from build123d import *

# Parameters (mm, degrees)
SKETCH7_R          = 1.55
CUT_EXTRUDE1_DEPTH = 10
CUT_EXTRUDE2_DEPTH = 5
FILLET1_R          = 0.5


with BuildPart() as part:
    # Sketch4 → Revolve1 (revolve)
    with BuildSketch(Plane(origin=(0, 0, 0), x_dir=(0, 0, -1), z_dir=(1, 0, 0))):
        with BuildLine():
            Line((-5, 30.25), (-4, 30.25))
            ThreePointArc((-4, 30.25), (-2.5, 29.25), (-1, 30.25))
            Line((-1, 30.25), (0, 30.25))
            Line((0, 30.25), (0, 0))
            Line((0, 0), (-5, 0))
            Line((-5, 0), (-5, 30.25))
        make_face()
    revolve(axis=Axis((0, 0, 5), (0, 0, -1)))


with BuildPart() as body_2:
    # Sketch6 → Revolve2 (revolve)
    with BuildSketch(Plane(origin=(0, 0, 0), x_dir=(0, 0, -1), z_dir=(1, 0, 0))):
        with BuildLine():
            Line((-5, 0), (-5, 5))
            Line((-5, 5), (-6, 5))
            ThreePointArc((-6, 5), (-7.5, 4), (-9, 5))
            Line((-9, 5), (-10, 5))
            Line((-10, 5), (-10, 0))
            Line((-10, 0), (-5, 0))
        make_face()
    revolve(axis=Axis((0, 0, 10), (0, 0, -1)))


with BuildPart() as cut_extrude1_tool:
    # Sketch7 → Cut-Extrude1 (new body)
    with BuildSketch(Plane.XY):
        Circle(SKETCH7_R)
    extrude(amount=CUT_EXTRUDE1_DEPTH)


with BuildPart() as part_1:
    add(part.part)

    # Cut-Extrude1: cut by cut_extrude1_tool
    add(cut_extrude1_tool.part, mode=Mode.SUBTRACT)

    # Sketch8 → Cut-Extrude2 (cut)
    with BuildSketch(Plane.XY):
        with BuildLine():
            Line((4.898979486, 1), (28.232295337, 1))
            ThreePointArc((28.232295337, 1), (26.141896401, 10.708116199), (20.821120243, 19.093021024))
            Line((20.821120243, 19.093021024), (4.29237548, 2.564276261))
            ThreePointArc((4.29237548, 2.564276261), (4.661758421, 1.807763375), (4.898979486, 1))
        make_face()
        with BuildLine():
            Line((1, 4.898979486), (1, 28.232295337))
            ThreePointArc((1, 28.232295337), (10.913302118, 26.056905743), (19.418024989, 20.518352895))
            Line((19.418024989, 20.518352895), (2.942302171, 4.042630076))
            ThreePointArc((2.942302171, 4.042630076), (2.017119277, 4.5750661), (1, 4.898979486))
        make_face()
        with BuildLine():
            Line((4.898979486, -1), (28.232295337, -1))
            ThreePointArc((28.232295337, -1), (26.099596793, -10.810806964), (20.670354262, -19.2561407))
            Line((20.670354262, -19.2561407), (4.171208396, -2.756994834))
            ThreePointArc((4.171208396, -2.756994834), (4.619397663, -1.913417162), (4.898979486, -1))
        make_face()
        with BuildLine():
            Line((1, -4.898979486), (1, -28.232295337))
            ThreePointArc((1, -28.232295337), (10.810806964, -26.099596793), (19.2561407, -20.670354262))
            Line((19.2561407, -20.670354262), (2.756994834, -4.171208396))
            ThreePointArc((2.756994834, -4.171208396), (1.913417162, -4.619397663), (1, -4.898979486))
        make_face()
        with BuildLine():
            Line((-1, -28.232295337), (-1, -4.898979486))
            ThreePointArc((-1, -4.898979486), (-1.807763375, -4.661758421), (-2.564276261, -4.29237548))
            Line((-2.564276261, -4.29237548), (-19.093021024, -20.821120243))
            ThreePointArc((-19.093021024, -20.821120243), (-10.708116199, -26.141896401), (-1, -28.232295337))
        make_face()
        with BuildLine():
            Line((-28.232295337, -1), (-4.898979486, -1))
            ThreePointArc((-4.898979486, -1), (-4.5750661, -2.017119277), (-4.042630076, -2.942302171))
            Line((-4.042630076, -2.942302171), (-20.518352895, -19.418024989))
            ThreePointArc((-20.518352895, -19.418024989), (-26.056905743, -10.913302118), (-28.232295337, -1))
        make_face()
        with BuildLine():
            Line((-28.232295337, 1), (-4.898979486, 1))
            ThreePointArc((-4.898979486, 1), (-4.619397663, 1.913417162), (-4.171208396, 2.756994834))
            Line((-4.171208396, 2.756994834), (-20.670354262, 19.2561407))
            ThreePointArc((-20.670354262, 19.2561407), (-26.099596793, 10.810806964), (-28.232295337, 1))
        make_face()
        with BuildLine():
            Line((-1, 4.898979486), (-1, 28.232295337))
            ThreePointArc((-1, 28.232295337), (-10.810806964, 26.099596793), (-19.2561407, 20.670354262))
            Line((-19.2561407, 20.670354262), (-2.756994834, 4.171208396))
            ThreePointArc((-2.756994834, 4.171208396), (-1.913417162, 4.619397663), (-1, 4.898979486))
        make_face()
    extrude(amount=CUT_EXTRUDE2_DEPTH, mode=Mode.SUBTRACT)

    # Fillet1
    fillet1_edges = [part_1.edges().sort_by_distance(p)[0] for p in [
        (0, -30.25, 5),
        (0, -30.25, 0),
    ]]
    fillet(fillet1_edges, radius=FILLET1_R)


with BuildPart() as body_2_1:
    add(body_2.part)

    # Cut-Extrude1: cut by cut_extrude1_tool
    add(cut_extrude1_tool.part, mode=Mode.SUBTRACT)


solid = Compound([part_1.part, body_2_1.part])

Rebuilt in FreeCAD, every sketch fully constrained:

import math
import FreeCAD as App
import Part
import Sketcher
Q = App.Units.Quantity


def edges_at(feature, points):
    """Names of the edges that pass closest to the given points."""
    edges = feature.Shape.Edges
    near = lambda p: min(range(len(edges)), key=lambda i: edges[i].distToShape(Part.Vertex(*p))[0])
    return sorted({f"Edge{near(p) + 1}" for p in points})

doc = App.newDocument("Part")
body = doc.addObject("PartDesign::Body", "Body")

# Sketch on YZ plane
sketch1 = body.newObject("Sketcher::SketchObject", "Sketch")
sketch1.AttachmentSupport = (doc.getObject("YZ_Plane"), [""])
sketch1.MapMode = "FlatFace"
sketch1.addGeometry(Part.LineSegment(App.Vector(30.25, 4, 0), App.Vector(30.25, 5, 0)), False)
sketch1.addGeometry(Part.LineSegment(App.Vector(30.25, 5, 0), App.Vector(0, 5, 0)), False)
sketch1.addGeometry(Part.LineSegment(App.Vector(0, 5, 0), App.Vector(0, 0, 0)), False)
sketch1.addGeometry(Part.LineSegment(App.Vector(0, 0, 0), App.Vector(30.25, 0, 0)), False)
sketch1.addGeometry(Part.LineSegment(App.Vector(30.25, 0, 0), App.Vector(30.25, 1, 0)), False)
sketch1.addGeometry(Part.ArcOfCircle(Part.Circle(App.Vector(30.875, 2.5, 0), App.Vector(0, 0, 1), 1.625), math.radians(112.619865), math.radians(247.380135)), False)
sketch1.addConstraint(Sketcher.Constraint("Coincident", 0, 2, 1, 1))
sketch1.addConstraint(Sketcher.Constraint("Coincident", 1, 2, 2, 1))
sketch1.addConstraint(Sketcher.Constraint("Coincident", 2, 2, 3, 1))
sketch1.addConstraint(Sketcher.Constraint("Coincident", 3, 2, 4, 1))
sketch1.addConstraint(Sketcher.Constraint("Coincident", 4, 2, 5, 2))
sketch1.addConstraint(Sketcher.Constraint("Coincident", 5, 1, 0, 1))
sketch1.addConstraint(Sketcher.Constraint("Vertical", 0))
sketch1.addConstraint(Sketcher.Constraint("Horizontal", 1))
sketch1.addConstraint(Sketcher.Constraint("Vertical", 2))
sketch1.addConstraint(Sketcher.Constraint("Horizontal", 3))
sketch1.addConstraint(Sketcher.Constraint("Vertical", 4))
sketch1.addConstraint(Sketcher.Constraint("Coincident", 2, 2, -1, 1))
sketch1.addConstraint(Sketcher.Constraint("Vertical", 0, 2, 3, 2))
sketch1.addConstraint(Sketcher.Constraint("Equal", 0, 4))
sketch1.addConstraint(Sketcher.Constraint("DistanceY", 0, 1, 0, 2, 1.0))
sketch1.addConstraint(Sketcher.Constraint("DistanceY", 2, 2, 2, 1, 5.0))
sketch1.addConstraint(Sketcher.Constraint("Radius", 5, 1.625))
sketch1.addConstraint(Sketcher.Constraint("DistanceX", 1, 2, 1, 1, 30.25))
revolution = body.newObject("PartDesign::Revolution", "Revolution")
revolution.Profile = sketch1
revolution.ReferenceAxis = (sketch1, ["V_Axis"])
revolution.Angle = 360
body2 = doc.addObject("PartDesign::Body", "Body001")

# Sketch on YZ plane
sketch2 = body2.newObject("Sketcher::SketchObject", "Sketch001")
sketch2.AttachmentSupport = (doc.getObject("YZ_Plane001"), [""])
sketch2.MapMode = "FlatFace"
sketch2.addGeometry(Part.LineSegment(App.Vector(0, 5, 0), App.Vector(5, 5, 0)), False)
sketch2.addGeometry(Part.LineSegment(App.Vector(5, 5, 0), App.Vector(5, 6, 0)), False)
sketch2.addGeometry(Part.ArcOfCircle(Part.Circle(App.Vector(5.625, 7.5, 0), App.Vector(0, 0, 1), 1.625), math.radians(112.619865), math.radians(247.380135)), False)
sketch2.addGeometry(Part.LineSegment(App.Vector(5, 9, 0), App.Vector(5, 10, 0)), False)
sketch2.addGeometry(Part.LineSegment(App.Vector(5, 10, 0), App.Vector(0, 10, 0)), False)
sketch2.addGeometry(Part.LineSegment(App.Vector(0, 10, 0), App.Vector(0, 5, 0)), False)
sketch2.addConstraint(Sketcher.Constraint("Coincident", 0, 2, 1, 1))
sketch2.addConstraint(Sketcher.Constraint("Coincident", 1, 2, 2, 2))
sketch2.addConstraint(Sketcher.Constraint("Coincident", 2, 1, 3, 1))
sketch2.addConstraint(Sketcher.Constraint("Coincident", 3, 2, 4, 1))
sketch2.addConstraint(Sketcher.Constraint("Coincident", 4, 2, 5, 1))
sketch2.addConstraint(Sketcher.Constraint("Coincident", 5, 2, 0, 1))
sketch2.addConstraint(Sketcher.Constraint("Horizontal", 0))
sketch2.addConstraint(Sketcher.Constraint("Vertical", 1))
sketch2.addConstraint(Sketcher.Constraint("Vertical", 3))
sketch2.addConstraint(Sketcher.Constraint("Horizontal", 4))
sketch2.addConstraint(Sketcher.Constraint("Vertical", 5))
sketch2.addConstraint(Sketcher.Constraint("PointOnObject", 4, 2, -2))
sketch2.addConstraint(Sketcher.Constraint("Vertical", 1, 2, 2, 1))
sketch2.addConstraint(Sketcher.Constraint("Equal", 1, 3))
sketch2.addConstraint(Sketcher.Constraint("Equal", 4, 5))
sketch2.addConstraint(Sketcher.Constraint("DistanceX", 0, 1, 0, 2, 5.0))
sketch2.addConstraint(Sketcher.Constraint("DistanceY", 1, 1, 1, 2, 1.0))
sketch2.addConstraint(Sketcher.Constraint("DistanceY", -1, 1, 0, 2, 5.0))
sketch2.addConstraint(Sketcher.Constraint("Radius", 2, 1.625))
revolution2 = body2.newObject("PartDesign::Revolution", "Revolution001")
revolution2.Profile = sketch2
revolution2.ReferenceAxis = (sketch2, ["V_Axis"])
revolution2.Angle = 360
body3 = doc.addObject("PartDesign::Body", "Body002")

# Sketch on XY plane
sketch3 = body3.newObject("Sketcher::SketchObject", "Sketch002")
sketch3.AttachmentSupport = (doc.getObject("XY_Plane002"), [""])
sketch3.MapMode = "FlatFace"
sketch3.addGeometry(Part.Circle(App.Vector(0, 0, 0), App.Vector(0, 0, 1), 1.55), False)
sketch3.addConstraint(Sketcher.Constraint("Coincident", 0, 3, -1, 1))
sketch3.addConstraint(Sketcher.Constraint("Diameter", 0, 3.1))
pad1 = body3.newObject("PartDesign::Pad", "Pad")
pad1.Profile = sketch3
pad1.Length = 10
doc.recompute()

body4 = doc.addObject("PartDesign::Body", "Body003")
body4.BaseFeature = body3
boolean = body.newObject("PartDesign::Boolean", "Boolean")
boolean.Type = "Cut"
boolean.addObjects([body4])
doc.recompute()

# Sketch on XY plane
sketch4 = body.newObject("Sketcher::SketchObject", "Sketch003")
sketch4.AttachmentSupport = (doc.getObject("XY_Plane"), [""])
sketch4.MapMode = "FlatFace"
sketch4.addGeometry(Part.LineSegment(App.Vector(4.898979, 1, 0), App.Vector(28.232295, 1, 0)), False)
sketch4.addGeometry(Part.ArcOfCircle(Part.Circle(App.Vector(0, 0, 0), App.Vector(0, 0, 1), 28.25), math.radians(2.028593), math.radians(42.520904)), False)
sketch4.addGeometry(Part.LineSegment(App.Vector(20.82112, 19.093021, 0), App.Vector(4.292375, 2.564276, 0)), False)
sketch4.addGeometry(Part.ArcOfCircle(Part.Circle(App.Vector(0, 0, 0), App.Vector(0, 0, 1), 5), math.radians(11.536959), math.radians(30.854204)), False)
sketch4.addGeometry(Part.LineSegment(App.Vector(1, 28.232295, 0), App.Vector(1, 4.898979, 0)), False)
sketch4.addGeometry(Part.ArcOfCircle(Part.Circle(App.Vector(0, 0, 0), App.Vector(0, 0, 1), 5), math.radians(53.952168), math.radians(78.463041)), False)
sketch4.addGeometry(Part.LineSegment(App.Vector(2.942302, 4.04263, 0), App.Vector(19.418025, 20.518353, 0)), False)
sketch4.addGeometry(Part.ArcOfCircle(Part.Circle(App.Vector(0, 0, 0), App.Vector(0, 0, 1), 28.25), math.radians(46.578215), math.radians(87.971407)), False)
sketch4.addGeometry(Part.LineSegment(App.Vector(28.232295, -1, 0), App.Vector(4.898979, -1, 0)), False)
sketch4.addGeometry(Part.ArcOfCircle(Part.Circle(App.Vector(0, 0, 0), App.Vector(0, 0, 1), 5), math.radians(-33.463041), math.radians(-11.536959)), False)
sketch4.addGeometry(Part.LineSegment(App.Vector(4.171208, -2.756995, 0), App.Vector(20.670354, -19.256141, 0)), False)
sketch4.addGeometry(Part.ArcOfCircle(Part.Circle(App.Vector(0, 0, 0), App.Vector(0, 0, 1), 28.25), math.radians(-42.971407), math.radians(-2.028593)), False)
sketch4.addGeometry(Part.LineSegment(App.Vector(1, -4.898979, 0), App.Vector(1, -28.232295, 0)), False)
sketch4.addGeometry(Part.ArcOfCircle(Part.Circle(App.Vector(0, 0, 0), App.Vector(0, 0, 1), 28.25), math.radians(-87.971407), math.radians(-47.028593)), False)
sketch4.addGeometry(Part.LineSegment(App.Vector(19.256141, -20.670354, 0), App.Vector(2.756995, -4.171208, 0)), False)
sketch4.addGeometry(Part.ArcOfCircle(Part.Circle(App.Vector(0, 0, 0), App.Vector(0, 0, 1), 5), math.radians(-78.463041), math.radians(-56.536959)), False)
sketch4.addGeometry(Part.LineSegment(App.Vector(-1, -28.232295, 0), App.Vector(-1, -4.898979, 0)), False)
sketch4.addGeometry(Part.ArcOfCircle(Part.Circle(App.Vector(0, 0, 0), App.Vector(0, 0, 1), 5), math.radians(-120.854204), math.radians(-101.536959)), False)
sketch4.addGeometry(Part.LineSegment(App.Vector(-2.564276, -4.292375, 0), App.Vector(-19.093021, -20.82112, 0)), False)
sketch4.addGeometry(Part.ArcOfCircle(Part.Circle(App.Vector(0, 0, 0), App.Vector(0, 0, 1), 28.25), math.radians(-132.520904), math.radians(-92.028593)), False)
sketch4.addGeometry(Part.LineSegment(App.Vector(-4.898979, -1, 0), App.Vector(-28.232295, -1, 0)), False)
sketch4.addGeometry(Part.ArcOfCircle(Part.Circle(App.Vector(0, 0, 0), App.Vector(0, 0, 1), 28.25), math.radians(-177.971407), math.radians(-136.578215)), False)
sketch4.addGeometry(Part.LineSegment(App.Vector(-20.518353, -19.418025, 0), App.Vector(-4.04263, -2.942302, 0)), False)
sketch4.addGeometry(Part.ArcOfCircle(Part.Circle(App.Vector(0, 0, 0), App.Vector(0, 0, 1), 5), math.radians(-168.463041), math.radians(-143.952168)), False)
sketch4.addGeometry(Part.LineSegment(App.Vector(-28.232295, 1, 0), App.Vector(-4.898979, 1, 0)), False)
sketch4.addGeometry(Part.ArcOfCircle(Part.Circle(App.Vector(0, 0, 0), App.Vector(0, 0, 1), 5), math.radians(146.536959), math.radians(168.463041)), False)
sketch4.addGeometry(Part.LineSegment(App.Vector(-4.171208, 2.756995, 0), App.Vector(-20.670354, 19.256141, 0)), False)
sketch4.addGeometry(Part.ArcOfCircle(Part.Circle(App.Vector(0, 0, 0), App.Vector(0, 0, 1), 28.25), math.radians(137.028593), math.radians(177.971407)), False)
sketch4.addGeometry(Part.LineSegment(App.Vector(-1, 4.898979, 0), App.Vector(-1, 28.232295, 0)), False)
sketch4.addGeometry(Part.ArcOfCircle(Part.Circle(App.Vector(0, 0, 0), App.Vector(0, 0, 1), 28.25), math.radians(92.028593), math.radians(132.971407)), False)
sketch4.addGeometry(Part.LineSegment(App.Vector(-19.256141, 20.670354, 0), App.Vector(-2.756995, 4.171208, 0)), False)
sketch4.addGeometry(Part.ArcOfCircle(Part.Circle(App.Vector(0, 0, 0), App.Vector(0, 0, 1), 5), math.radians(101.536959), math.radians(123.463041)), False)
sketch4.addConstraint(Sketcher.Constraint("Coincident", 0, 2, 1, 1))
sketch4.addConstraint(Sketcher.Constraint("Coincident", 1, 2, 2, 1))
sketch4.addConstraint(Sketcher.Constraint("Coincident", 2, 2, 3, 2))
sketch4.addConstraint(Sketcher.Constraint("Coincident", 3, 1, 0, 1))
sketch4.addConstraint(Sketcher.Constraint("Coincident", 4, 2, 5, 2))
sketch4.addConstraint(Sketcher.Constraint("Coincident", 5, 1, 6, 1))
sketch4.addConstraint(Sketcher.Constraint("Coincident", 6, 2, 7, 1))
sketch4.addConstraint(Sketcher.Constraint("Coincident", 7, 2, 4, 1))
sketch4.addConstraint(Sketcher.Constraint("Coincident", 8, 2, 9, 2))
sketch4.addConstraint(Sketcher.Constraint("Coincident", 9, 1, 10, 1))
sketch4.addConstraint(Sketcher.Constraint("Coincident", 10, 2, 11, 1))
sketch4.addConstraint(Sketcher.Constraint("Coincident", 11, 2, 8, 1))
sketch4.addConstraint(Sketcher.Constraint("Coincident", 12, 2, 13, 1))
sketch4.addConstraint(Sketcher.Constraint("Coincident", 13, 2, 14, 1))
sketch4.addConstraint(Sketcher.Constraint("Coincident", 14, 2, 15, 2))
sketch4.addConstraint(Sketcher.Constraint("Coincident", 15, 1, 12, 1))
sketch4.addConstraint(Sketcher.Constraint("Coincident", 16, 2, 17, 2))
sketch4.addConstraint(Sketcher.Constraint("Coincident", 17, 1, 18, 1))
sketch4.addConstraint(Sketcher.Constraint("Coincident", 18, 2, 19, 1))
sketch4.addConstraint(Sketcher.Constraint("Coincident", 19, 2, 16, 1))
sketch4.addConstraint(Sketcher.Constraint("Coincident", 20, 2, 21, 1))
sketch4.addConstraint(Sketcher.Constraint("Coincident", 21, 2, 22, 1))
sketch4.addConstraint(Sketcher.Constraint("Coincident", 22, 2, 23, 2))
sketch4.addConstraint(Sketcher.Constraint("Coincident", 23, 1, 20, 1))
sketch4.addConstraint(Sketcher.Constraint("Coincident", 24, 2, 25, 2))
sketch4.addConstraint(Sketcher.Constraint("Coincident", 25, 1, 26, 1))
sketch4.addConstraint(Sketcher.Constraint("Coincident", 26, 2, 27, 1))
sketch4.addConstraint(Sketcher.Constraint("Coincident", 27, 2, 24, 1))
sketch4.addConstraint(Sketcher.Constraint("Coincident", 28, 2, 29, 1))
sketch4.addConstraint(Sketcher.Constraint("Coincident", 29, 2, 30, 1))
sketch4.addConstraint(Sketcher.Constraint("Coincident", 30, 2, 31, 2))
sketch4.addConstraint(Sketcher.Constraint("Coincident", 31, 1, 28, 1))
sketch4.addConstraint(Sketcher.Constraint("Horizontal", 0))
sketch4.addConstraint(Sketcher.Constraint("Vertical", 4))
sketch4.addConstraint(Sketcher.Constraint("Horizontal", 8))
sketch4.addConstraint(Sketcher.Constraint("Vertical", 12))
sketch4.addConstraint(Sketcher.Constraint("Vertical", 16))
sketch4.addConstraint(Sketcher.Constraint("Horizontal", 20))
sketch4.addConstraint(Sketcher.Constraint("Horizontal", 24))
sketch4.addConstraint(Sketcher.Constraint("Vertical", 28))
sketch4.addConstraint(Sketcher.Constraint("Coincident", 1, 3, -1, 1))
sketch4.addConstraint(Sketcher.Constraint("Coincident", 3, 3, -1, 1))
sketch4.addConstraint(Sketcher.Constraint("Coincident", 5, 3, -1, 1))
sketch4.addConstraint(Sketcher.Constraint("Coincident", 7, 3, -1, 1))
sketch4.addConstraint(Sketcher.Constraint("Coincident", 9, 3, -1, 1))
sketch4.addConstraint(Sketcher.Constraint("Coincident", 11, 3, -1, 1))
sketch4.addConstraint(Sketcher.Constraint("Coincident", 13, 3, -1, 1))
sketch4.addConstraint(Sketcher.Constraint("Coincident", 15, 3, -1, 1))
sketch4.addConstraint(Sketcher.Constraint("Coincident", 17, 3, -1, 1))
sketch4.addConstraint(Sketcher.Constraint("Coincident", 19, 3, -1, 1))
sketch4.addConstraint(Sketcher.Constraint("Coincident", 21, 3, -1, 1))
sketch4.addConstraint(Sketcher.Constraint("Coincident", 23, 3, -1, 1))
sketch4.addConstraint(Sketcher.Constraint("Coincident", 25, 3, -1, 1))
sketch4.addConstraint(Sketcher.Constraint("Coincident", 27, 3, -1, 1))
sketch4.addConstraint(Sketcher.Constraint("Coincident", 29, 3, -1, 1))
sketch4.addConstraint(Sketcher.Constraint("Coincident", 31, 3, -1, 1))
sketch4.addConstraint(Sketcher.Constraint("Equal", 3, 5))
sketch4.addConstraint(Sketcher.Constraint("Equal", 1, 7))
sketch4.addConstraint(Sketcher.Constraint("Equal", 5, 9))
sketch4.addConstraint(Sketcher.Constraint("Equal", 7, 11))
sketch4.addConstraint(Sketcher.Constraint("Equal", 11, 13))
sketch4.addConstraint(Sketcher.Constraint("Equal", 9, 15))
sketch4.addConstraint(Sketcher.Constraint("Equal", 15, 17))
sketch4.addConstraint(Sketcher.Constraint("Equal", 13, 19))
sketch4.addConstraint(Sketcher.Constraint("Equal", 19, 21))
sketch4.addConstraint(Sketcher.Constraint("Equal", 17, 23))
sketch4.addConstraint(Sketcher.Constraint("Equal", 23, 25))
sketch4.addConstraint(Sketcher.Constraint("Equal", 21, 27))
sketch4.addConstraint(Sketcher.Constraint("Equal", 27, 29))
sketch4.addConstraint(Sketcher.Constraint("Equal", 25, 31))
sketch4.addConstraint(Sketcher.Constraint("Parallel", 2, 6))
sketch4.addConstraint(Sketcher.Constraint("Perpendicular", 6, 10))
sketch4.addConstraint(Sketcher.Constraint("Parallel", 10, 14))
sketch4.addConstraint(Sketcher.Constraint("Perpendicular", 14, 18))
sketch4.addConstraint(Sketcher.Constraint("Parallel", 18, 22))
sketch4.addConstraint(Sketcher.Constraint("Perpendicular", 22, 26))
sketch4.addConstraint(Sketcher.Constraint("Parallel", 26, 30))
sketch4.addConstraint(Sketcher.Constraint("Horizontal", 15, 1, 16, 2))
sketch4.addConstraint(Sketcher.Constraint("Horizontal", 11, 2, 20, 2))
sketch4.addConstraint(Sketcher.Constraint("Horizontal", 3, 1, 24, 2))
sketch4.addConstraint(Sketcher.Constraint("Horizontal", 7, 2, 28, 2))
sketch4.addConstraint(Sketcher.Constraint("Vertical", 3, 1, 8, 2))
sketch4.addConstraint(Sketcher.Constraint("Vertical", 7, 2, 12, 2))
sketch4.addConstraint(Sketcher.Constraint("Equal", 24, 4))
sketch4.addConstraint(Sketcher.Constraint("Equal", 10, 14))
sketch4.addConstraint(Sketcher.Constraint("Equal", 2, 18))
sketch4.addConstraint(Sketcher.Constraint("Equal", 6, 22))
sketch4.addConstraint(Sketcher.Constraint("Equal", 14, 26))
sketch4.addConstraint(Sketcher.Constraint("Equal", 26, 30))
sketch4.addConstraint(Sketcher.Constraint("Radius", 3, 5.0))
sketch4.addConstraint(Sketcher.Constraint("Angle", 2, Q("-135 deg")))
sketch4.addConstraint(Sketcher.Constraint("Radius", 1, 28.25))
sketch4.addConstraint(Sketcher.Constraint("DistanceY", -1, 1, 0, 2, 1.0))
sketch4.addConstraint(Sketcher.Constraint("DistanceY", 12, 2, 9, 1, 25.475301))
sketch4.addConstraint(Sketcher.Constraint("Distance", 6, 23.300191))
sketch4.addConstraint(Sketcher.Constraint("DistanceX", -1, 1, 1, 2, 20.82112))
pocket1 = body.newObject("PartDesign::Pocket", "Pocket")
pocket1.Profile = sketch4
pocket1.Length = 5
pocket1.Reversed = True
doc.recompute()

fillet = body.newObject("PartDesign::Fillet", "Fillet")
fillet.Base = (pocket1, edges_at(pocket1, [(0, -30.25, 5), (0, -30.25, 0)]))
fillet.Radius = 0.5
doc.recompute()

boolean2 = body2.newObject("PartDesign::Boolean", "Boolean001")
boolean2.Type = "Cut"
boolean2.addObjects([body3])

doc.recompute()
